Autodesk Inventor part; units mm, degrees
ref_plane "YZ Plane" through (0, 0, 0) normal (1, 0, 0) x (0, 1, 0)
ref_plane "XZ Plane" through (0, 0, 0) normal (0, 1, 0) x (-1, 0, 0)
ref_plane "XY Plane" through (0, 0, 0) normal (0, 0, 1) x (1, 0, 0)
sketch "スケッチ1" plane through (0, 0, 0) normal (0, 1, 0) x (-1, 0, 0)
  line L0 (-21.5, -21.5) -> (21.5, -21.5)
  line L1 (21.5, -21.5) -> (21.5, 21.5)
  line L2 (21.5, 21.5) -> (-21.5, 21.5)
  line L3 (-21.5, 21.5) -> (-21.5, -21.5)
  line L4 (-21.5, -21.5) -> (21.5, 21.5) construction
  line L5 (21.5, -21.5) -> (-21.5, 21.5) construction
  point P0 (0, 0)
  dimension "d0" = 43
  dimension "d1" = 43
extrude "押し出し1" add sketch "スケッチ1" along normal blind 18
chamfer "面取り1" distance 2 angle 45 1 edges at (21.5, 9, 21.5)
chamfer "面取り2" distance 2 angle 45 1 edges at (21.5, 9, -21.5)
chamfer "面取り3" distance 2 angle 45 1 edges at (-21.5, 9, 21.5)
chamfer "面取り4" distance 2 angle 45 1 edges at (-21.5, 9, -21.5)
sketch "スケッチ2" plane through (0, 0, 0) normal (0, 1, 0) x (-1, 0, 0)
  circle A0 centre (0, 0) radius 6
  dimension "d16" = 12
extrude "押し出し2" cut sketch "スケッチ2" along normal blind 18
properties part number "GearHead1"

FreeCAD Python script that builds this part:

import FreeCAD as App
import Part
import Sketcher


def edges_at(feature, points):
    """Names of the edges that pass closest to the given points."""
    edges = feature.Shape.Edges
    near = lambda p: min(range(len(edges)), key=lambda i: edges[i].distToShape(Part.Vertex(*p))[0])
    return sorted({f"Edge{near(p) + 1}" for p in points})


def add_polygon(sketch, points):
    """Adds a closed chain of lines whose ends are joined by coincident constraints."""
    first, n = sketch.GeometryCount, len(points)
    for a, b in zip(points, points[1:] + points[:1]):
        sketch.addGeometry(Part.LineSegment(App.Vector(*a, 0), App.Vector(*b, 0)), False)
    for i in range(n):
        sketch.addConstraint(Sketcher.Constraint("Coincident", first + i, 2, first + (i + 1) % n, 1))

doc = App.newDocument("Part")
body = doc.addObject("PartDesign::Body", "Body")

sketch1 = body.newObject("Sketcher::SketchObject", "Sketch")
sketch1.AttachmentSupport = (doc.getObject("XZ_Plane"), [""])
sketch1.MapMode = "FlatFace"
add_polygon(sketch1, [(22, 22), (22, -22), (-22, -22), (-22, 22)])
sketch1.addConstraint(Sketcher.Constraint("Vertical", 0))
sketch1.addConstraint(Sketcher.Constraint("Horizontal", 1))
sketch1.addConstraint(Sketcher.Constraint("Vertical", 2))
sketch1.addConstraint(Sketcher.Constraint("Horizontal", 3))
sketch1.addConstraint(Sketcher.Constraint("Symmetric", 0, 2, 2, 2, -1, 1))
sketch1.addConstraint(Sketcher.Constraint("Equal", 3, 0))
sketch1.addConstraint(Sketcher.Constraint("DistanceX", 1, 2, 1, 1, 43.0))
pad1 = body.newObject("PartDesign::Pad", "Pad")
pad1.Profile = sketch1
pad1.Length = 18
pad1.Reversed = True
doc.recompute()

chamfer = body.newObject("PartDesign::Chamfer", "Chamfer")
chamfer.Base = (pad1, edges_at(pad1, [(21.5, 9, 21.5)]))
chamfer.Size = 2
doc.recompute()

chamfer2 = body.newObject("PartDesign::Chamfer", "Chamfer001")
chamfer2.Base = (chamfer, edges_at(chamfer, [(21.5, 9, -21.5)]))
chamfer2.Size = 2
doc.recompute()

chamfer3 = body.newObject("PartDesign::Chamfer", "Chamfer002")
chamfer3.Base = (chamfer2, edges_at(chamfer2, [(-21.5, 9, 21.5)]))
chamfer3.Size = 2
doc.recompute()

chamfer4 = body.newObject("PartDesign::Chamfer", "Chamfer003")
chamfer4.Base = (chamfer3, edges_at(chamfer3, [(-21.5, 9, -21.5)]))
chamfer4.Size = 2

sketch2 = body.newObject("Sketcher::SketchObject", "Sketch001")
sketch2.AttachmentSupport = (doc.getObject("XZ_Plane"), [""])
sketch2.MapMode = "FlatFace"
sketch2.addGeometry(Part.Circle(App.Vector(0, 0, 0), App.Vector(0, 0, 1), 6), False)
sketch2.addConstraint(Sketcher.Constraint("Coincident", 0, 3, -1, 1))
sketch2.addConstraint(Sketcher.Constraint("Diameter", 0, 12.0))
pocket1 = body.newObject("PartDesign::Pocket", "Pocket")
pocket1.Profile = sketch2
pocket1.Length = 18

doc.recompute()
